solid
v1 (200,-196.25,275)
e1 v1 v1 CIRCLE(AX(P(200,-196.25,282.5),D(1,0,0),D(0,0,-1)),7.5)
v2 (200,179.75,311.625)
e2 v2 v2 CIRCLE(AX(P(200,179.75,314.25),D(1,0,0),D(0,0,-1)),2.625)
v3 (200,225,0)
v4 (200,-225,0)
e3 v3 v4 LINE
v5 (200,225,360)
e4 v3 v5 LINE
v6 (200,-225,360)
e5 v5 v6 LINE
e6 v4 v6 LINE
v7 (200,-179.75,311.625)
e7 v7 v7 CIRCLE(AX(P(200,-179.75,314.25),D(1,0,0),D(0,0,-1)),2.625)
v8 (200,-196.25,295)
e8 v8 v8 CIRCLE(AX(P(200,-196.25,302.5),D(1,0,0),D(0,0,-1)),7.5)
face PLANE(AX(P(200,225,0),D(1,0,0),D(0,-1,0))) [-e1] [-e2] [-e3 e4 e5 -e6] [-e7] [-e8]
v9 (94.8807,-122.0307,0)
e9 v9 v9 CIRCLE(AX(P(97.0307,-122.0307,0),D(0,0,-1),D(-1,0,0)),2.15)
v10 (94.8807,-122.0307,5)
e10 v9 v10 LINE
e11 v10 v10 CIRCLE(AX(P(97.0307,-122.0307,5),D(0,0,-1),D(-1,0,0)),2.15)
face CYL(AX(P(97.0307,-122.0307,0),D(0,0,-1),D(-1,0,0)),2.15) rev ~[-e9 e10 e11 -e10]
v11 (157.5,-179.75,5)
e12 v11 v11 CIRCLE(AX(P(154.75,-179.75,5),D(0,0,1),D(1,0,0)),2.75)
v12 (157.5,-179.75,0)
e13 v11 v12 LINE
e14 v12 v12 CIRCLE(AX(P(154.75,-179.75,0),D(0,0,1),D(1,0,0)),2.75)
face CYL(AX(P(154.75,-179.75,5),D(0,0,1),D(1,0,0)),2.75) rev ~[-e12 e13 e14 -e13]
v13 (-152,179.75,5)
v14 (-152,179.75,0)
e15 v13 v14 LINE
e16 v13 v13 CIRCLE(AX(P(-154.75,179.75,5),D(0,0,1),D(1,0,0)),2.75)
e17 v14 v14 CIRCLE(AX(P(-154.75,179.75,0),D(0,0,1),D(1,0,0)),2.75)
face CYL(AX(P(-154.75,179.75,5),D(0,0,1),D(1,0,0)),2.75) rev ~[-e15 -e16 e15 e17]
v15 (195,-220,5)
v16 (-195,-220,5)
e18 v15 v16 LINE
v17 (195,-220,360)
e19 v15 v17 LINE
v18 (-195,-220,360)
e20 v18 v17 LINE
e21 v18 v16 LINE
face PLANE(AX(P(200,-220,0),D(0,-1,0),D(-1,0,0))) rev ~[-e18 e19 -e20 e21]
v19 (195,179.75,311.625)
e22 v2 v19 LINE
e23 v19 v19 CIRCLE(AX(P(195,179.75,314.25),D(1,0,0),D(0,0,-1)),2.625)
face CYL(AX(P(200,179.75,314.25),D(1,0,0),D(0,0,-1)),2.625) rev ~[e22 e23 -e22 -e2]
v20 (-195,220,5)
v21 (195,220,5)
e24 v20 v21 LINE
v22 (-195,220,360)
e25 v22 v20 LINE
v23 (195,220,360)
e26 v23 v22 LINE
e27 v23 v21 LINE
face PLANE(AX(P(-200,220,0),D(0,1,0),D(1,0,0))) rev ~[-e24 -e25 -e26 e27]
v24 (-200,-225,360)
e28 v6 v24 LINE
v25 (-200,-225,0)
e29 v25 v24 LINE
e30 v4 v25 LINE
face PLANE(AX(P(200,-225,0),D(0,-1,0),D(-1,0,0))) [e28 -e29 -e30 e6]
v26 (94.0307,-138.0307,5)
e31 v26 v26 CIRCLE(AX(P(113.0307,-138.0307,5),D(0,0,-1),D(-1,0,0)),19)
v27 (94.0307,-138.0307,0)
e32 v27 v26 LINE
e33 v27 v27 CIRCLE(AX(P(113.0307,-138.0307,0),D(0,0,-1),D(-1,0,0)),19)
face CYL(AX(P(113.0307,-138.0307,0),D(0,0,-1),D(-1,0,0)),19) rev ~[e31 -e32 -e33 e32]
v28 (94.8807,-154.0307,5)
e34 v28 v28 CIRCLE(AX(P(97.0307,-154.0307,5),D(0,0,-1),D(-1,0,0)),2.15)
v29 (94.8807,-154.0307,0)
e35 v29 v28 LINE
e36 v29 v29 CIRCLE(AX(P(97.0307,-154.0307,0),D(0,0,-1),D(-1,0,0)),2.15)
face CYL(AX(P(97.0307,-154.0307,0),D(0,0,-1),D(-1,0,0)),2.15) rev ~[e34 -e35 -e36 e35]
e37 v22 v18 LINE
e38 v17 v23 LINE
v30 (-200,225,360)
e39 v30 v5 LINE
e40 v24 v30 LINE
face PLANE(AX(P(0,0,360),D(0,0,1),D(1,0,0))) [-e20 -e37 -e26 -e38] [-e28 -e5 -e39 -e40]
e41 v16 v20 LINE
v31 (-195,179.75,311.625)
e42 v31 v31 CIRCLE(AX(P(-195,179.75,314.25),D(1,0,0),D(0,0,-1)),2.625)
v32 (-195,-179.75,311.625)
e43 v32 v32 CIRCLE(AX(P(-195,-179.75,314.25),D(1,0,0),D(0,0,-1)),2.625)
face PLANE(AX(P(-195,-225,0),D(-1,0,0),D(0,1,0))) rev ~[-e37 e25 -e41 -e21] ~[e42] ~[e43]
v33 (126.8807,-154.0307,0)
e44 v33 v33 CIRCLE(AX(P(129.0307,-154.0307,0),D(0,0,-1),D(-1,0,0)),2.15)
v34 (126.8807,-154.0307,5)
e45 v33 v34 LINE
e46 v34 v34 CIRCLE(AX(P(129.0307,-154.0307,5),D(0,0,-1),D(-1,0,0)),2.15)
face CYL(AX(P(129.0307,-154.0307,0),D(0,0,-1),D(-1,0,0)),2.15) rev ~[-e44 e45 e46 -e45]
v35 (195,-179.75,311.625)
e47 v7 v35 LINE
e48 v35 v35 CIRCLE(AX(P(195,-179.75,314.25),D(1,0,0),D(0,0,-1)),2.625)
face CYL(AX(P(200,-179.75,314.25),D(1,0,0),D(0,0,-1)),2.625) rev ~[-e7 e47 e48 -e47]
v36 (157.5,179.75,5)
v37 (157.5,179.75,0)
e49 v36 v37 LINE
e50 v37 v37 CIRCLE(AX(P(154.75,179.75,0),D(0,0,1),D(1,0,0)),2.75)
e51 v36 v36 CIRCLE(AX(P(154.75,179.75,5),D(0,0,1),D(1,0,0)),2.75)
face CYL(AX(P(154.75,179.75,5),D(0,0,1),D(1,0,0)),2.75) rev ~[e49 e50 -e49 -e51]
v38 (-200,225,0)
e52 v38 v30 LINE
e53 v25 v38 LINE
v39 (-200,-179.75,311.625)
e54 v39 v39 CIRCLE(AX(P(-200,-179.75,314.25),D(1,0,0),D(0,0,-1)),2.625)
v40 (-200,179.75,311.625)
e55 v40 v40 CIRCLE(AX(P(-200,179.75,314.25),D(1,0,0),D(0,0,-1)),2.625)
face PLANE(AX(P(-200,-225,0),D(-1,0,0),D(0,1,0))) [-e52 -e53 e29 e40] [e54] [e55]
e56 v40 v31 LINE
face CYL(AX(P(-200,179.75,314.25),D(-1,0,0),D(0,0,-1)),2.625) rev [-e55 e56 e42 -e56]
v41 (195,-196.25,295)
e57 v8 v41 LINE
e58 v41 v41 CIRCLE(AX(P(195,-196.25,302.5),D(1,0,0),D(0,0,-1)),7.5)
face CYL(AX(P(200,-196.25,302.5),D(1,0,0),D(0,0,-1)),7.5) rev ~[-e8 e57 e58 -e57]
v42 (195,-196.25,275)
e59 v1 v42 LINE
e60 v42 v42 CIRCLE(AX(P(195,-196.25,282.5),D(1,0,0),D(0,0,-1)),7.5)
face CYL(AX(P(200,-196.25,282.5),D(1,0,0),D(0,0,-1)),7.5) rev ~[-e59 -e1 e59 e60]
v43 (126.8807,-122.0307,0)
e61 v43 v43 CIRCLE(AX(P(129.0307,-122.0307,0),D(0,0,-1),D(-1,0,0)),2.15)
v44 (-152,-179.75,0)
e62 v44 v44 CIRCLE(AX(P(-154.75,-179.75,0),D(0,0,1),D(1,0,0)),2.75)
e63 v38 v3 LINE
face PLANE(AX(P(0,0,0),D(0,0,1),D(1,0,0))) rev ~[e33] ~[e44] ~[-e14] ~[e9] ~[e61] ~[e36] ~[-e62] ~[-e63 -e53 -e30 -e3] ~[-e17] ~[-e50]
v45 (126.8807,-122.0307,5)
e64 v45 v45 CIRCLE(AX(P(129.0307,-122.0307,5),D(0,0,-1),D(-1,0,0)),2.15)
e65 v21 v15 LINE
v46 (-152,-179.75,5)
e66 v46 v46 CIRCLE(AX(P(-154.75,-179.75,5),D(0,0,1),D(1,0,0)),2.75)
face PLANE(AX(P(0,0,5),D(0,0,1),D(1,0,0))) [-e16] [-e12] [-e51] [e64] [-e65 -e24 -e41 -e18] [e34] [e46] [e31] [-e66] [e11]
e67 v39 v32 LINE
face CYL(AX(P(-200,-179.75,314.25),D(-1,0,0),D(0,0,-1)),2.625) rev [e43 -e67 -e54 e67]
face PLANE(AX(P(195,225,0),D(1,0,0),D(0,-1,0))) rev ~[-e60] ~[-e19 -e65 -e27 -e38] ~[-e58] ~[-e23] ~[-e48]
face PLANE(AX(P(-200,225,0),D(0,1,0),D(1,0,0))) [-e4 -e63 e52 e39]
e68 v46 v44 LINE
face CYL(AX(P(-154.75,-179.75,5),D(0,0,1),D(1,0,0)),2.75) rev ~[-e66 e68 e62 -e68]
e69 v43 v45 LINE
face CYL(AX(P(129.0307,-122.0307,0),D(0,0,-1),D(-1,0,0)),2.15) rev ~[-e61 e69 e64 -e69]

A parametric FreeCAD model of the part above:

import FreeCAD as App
import Part
import Sketcher
from FreeCAD import Vector


def faces_at(feature, points):
    """Names of the faces that lie closest to the given points."""
    faces = feature.Shape.Faces
    near = lambda p: min(range(len(faces)), key=lambda i: faces[i].distToShape(Part.Vertex(*p))[0])
    return sorted({f"Face{near(p) + 1}" for p in points})

doc = App.newDocument("Part")
body = doc.addObject("PartDesign::Body", "Body")

# Sketch on XY plane
sketch1 = doc.addObject("Sketcher::SketchObject", "Sketch")
body.addObject(sketch1)
sketch1.AttachmentSupport = (doc.XY_Plane, [""])
sketch1.MapMode = "FlatFace"
sketch1.addGeometry(Part.LineSegment(Vector(-200, -225, 0), Vector(200, -225, 0)), False)
sketch1.addGeometry(Part.LineSegment(Vector(200, -225, 0), Vector(200, 225, 0)), False)
sketch1.addGeometry(Part.LineSegment(Vector(200, 225, 0), Vector(-200, 225, 0)), False)
sketch1.addGeometry(Part.LineSegment(Vector(-200, 225, 0), Vector(-200, -225, 0)), False)
sketch1.addConstraint(Sketcher.Constraint("Coincident", 0, 2, 1, 1))
sketch1.addConstraint(Sketcher.Constraint("Coincident", 1, 2, 2, 1))
sketch1.addConstraint(Sketcher.Constraint("Coincident", 2, 2, 3, 1))
sketch1.addConstraint(Sketcher.Constraint("Coincident", 3, 2, 0, 1))
sketch1.addConstraint(Sketcher.Constraint("Horizontal", 0))
sketch1.addConstraint(Sketcher.Constraint("Vertical", 1))
sketch1.addConstraint(Sketcher.Constraint("Horizontal", 2))
sketch1.addConstraint(Sketcher.Constraint("Vertical", 3))
sketch1.addConstraint(Sketcher.Constraint("Symmetric", 0, 2, 2, 2, -1, 1))
sketch1.addConstraint(Sketcher.Constraint("DistanceX", 0, 1, 0, 2, 400.0))
sketch1.addConstraint(Sketcher.Constraint("DistanceY", 1, 1, 1, 2, 450.0))
pad1 = doc.addObject("PartDesign::Pad", "Pad")
body.addObject(pad1)
pad1.Profile = sketch1
pad1.Length = 360
doc.recompute()

thickness = doc.addObject("PartDesign::Thickness", "Thickness")
body.addObject(thickness)
thickness.Base = (pad1, faces_at(pad1, [(-66.667, -75, 360)]))
thickness.Value = 5
thickness.Reversed = True
thickness.Join = "Intersection"

# Sketch on YZ plane
sketch2 = doc.addObject("Sketcher::SketchObject", "Sketch001")
body.addObject(sketch2)
sketch2.AttachmentSupport = (doc.YZ_Plane, [""])
sketch2.MapMode = "FlatFace"
sketch2.AttachmentOffset = App.Placement(Vector(0, 0, 200), App.Rotation())
sketch2.addGeometry(Part.Circle(Vector(-196, 302, 0), Vector(0, 0, 1), 8), False)
sketch2.addGeometry(Part.Circle(Vector(-196, 282, 0), Vector(0, 0, 1), 8), False)
sketch2.addConstraint(Sketcher.Constraint("Equal", 0, 1))
sketch2.addConstraint(Sketcher.Constraint("Vertical", 0, 3, 1, 3))
sketch2.addConstraint(Sketcher.Constraint("Diameter", 0, 15.0))
sketch2.addConstraint(Sketcher.Constraint("DistanceY", 1, 3, 0, 3, 20.0))
sketch2.addConstraint(Sketcher.Constraint("DistanceY", -1, 1, 0, 3, 302.5))
sketch2.addConstraint(Sketcher.Constraint("DistanceX", 0, 3, -1, 1, 196.25))
pocket1 = doc.addObject("PartDesign::Pocket", "Pocket")
body.addObject(pocket1)
pocket1.Profile = sketch2
pocket1.Length = 5

# Sketch on XY plane
sketch3 = doc.addObject("Sketcher::SketchObject", "Sketch002")
body.addObject(sketch3)
sketch3.AttachmentSupport = (doc.XY_Plane, [""])
sketch3.MapMode = "FlatFace"
sketch3.AttachmentOffset = App.Placement(Vector(0, 0, 5), App.Rotation())
sketch3.addGeometry(Part.Circle(Vector(-154.8, 179.8, 0), Vector(0, 0, 1), 2.8), False)
sketch3.addGeometry(Part.Circle(Vector(154.8, 179.8, 0), Vector(0, 0, 1), 2.8), False)
sketch3.addGeometry(Part.Circle(Vector(-154.8, -179.8, 0), Vector(0, 0, 1), 2.8), False)
sketch3.addGeometry(Part.Circle(Vector(154.8, -179.8, 0), Vector(0, 0, 1), 2.8), False)
sketch3.addConstraint(Sketcher.Constraint("Equal", 0, 1))
sketch3.addConstraint(Sketcher.Constraint("Equal", 1, 2))
sketch3.addConstraint(Sketcher.Constraint("Equal", 2, 3))
sketch3.addConstraint(Sketcher.Constraint("Symmetric", 1, 3, 2, 3, -1, 1))
sketch3.addConstraint(Sketcher.Constraint("Symmetric", 0, 3, 3, 3, -1, 1))
sketch3.addConstraint(Sketcher.Constraint("Symmetric", 0, 3, 1, 3, -2))
sketch3.addConstraint(Sketcher.Constraint("Diameter", 0, 5.5))
sketch3.addConstraint(Sketcher.Constraint("DistanceX", 0, 3, 1, 3, 309.5))
sketch3.addConstraint(Sketcher.Constraint("DistanceY", 2, 3, 0, 3, 359.5))
pocket2 = doc.addObject("PartDesign::Pocket", "Pocket001")
body.addObject(pocket2)
pocket2.Profile = sketch3
pocket2.Length = 5

# Sketch on YZ plane
sketch4 = doc.addObject("Sketcher::SketchObject", "Sketch003")
body.addObject(sketch4)
sketch4.AttachmentSupport = (doc.YZ_Plane, [""])
sketch4.MapMode = "FlatFace"
sketch4.AttachmentOffset = App.Placement(Vector(0, 0, 200), App.Rotation())
sketch4.addGeometry(Part.Circle(Vector(179.8, 314.2, 0), Vector(0, 0, 1), 2.6), False)
sketch4.addGeometry(Part.Circle(Vector(-179.8, 314.2, 0), Vector(0, 0, 1), 2.6), False)
sketch4.addConstraint(Sketcher.Constraint("Equal", 0, 1))
sketch4.addConstraint(Sketcher.Constraint("Symmetric", 0, 3, 1, 3, -2))
sketch4.addConstraint(Sketcher.Constraint("Diameter", 0, 5.25))
sketch4.addConstraint(Sketcher.Constraint("DistanceX", 1, 3, 0, 3, 359.5))
sketch4.addConstraint(Sketcher.Constraint("DistanceY", -1, 1, 0, 3, 314.25))
pocket3 = doc.addObject("PartDesign::Pocket", "Pocket002")
body.addObject(pocket3)
pocket3.Profile = sketch4
pocket3.Length = 5
doc.recompute()

mirrored = doc.addObject("PartDesign::Mirrored", "Mirrored")
body.addObject(mirrored)
mirrored.Originals = [pocket3]
mirrored.MirrorPlane = (doc.YZ_Plane, [""])
body.Tip = mirrored

# Sketch on XY plane
sketch5 = doc.addObject("Sketcher::SketchObject", "Sketch004")
body.addObject(sketch5)
sketch5.AttachmentSupport = (doc.XY_Plane, [""])
sketch5.MapMode = "FlatFace"
sketch5.addGeometry(Part.Circle(Vector(113, -138, 0), Vector(0, 0, 1), 19), False)
sketch5.addGeometry(Part.Circle(Vector(129, -122, 0), Vector(0, 0, 1), 2.1), False)
sketch5.addGeometry(Part.Circle(Vector(97, -122, 0), Vector(0, 0, 1), 2.1), False)
sketch5.addGeometry(Part.Circle(Vector(129, -154, 0), Vector(0, 0, 1), 2.1), False)
sketch5.addGeometry(Part.Circle(Vector(97, -154, 0), Vector(0, 0, 1), 2.1), False)
sketch5.addConstraint(Sketcher.Constraint("Equal", 1, 2))
sketch5.addConstraint(Sketcher.Constraint("Equal", 2, 3))
sketch5.addConstraint(Sketcher.Constraint("Equal", 3, 4))
sketch5.addConstraint(Sketcher.Constraint("Horizontal", 1, 3, 2, 3))
sketch5.addConstraint(Sketcher.Constraint("Horizontal", 3, 3, 4, 3))
sketch5.addConstraint(Sketcher.Constraint("Vertical", 1, 3, 3, 3))
sketch5.addConstraint(Sketcher.Constraint("Vertical", 2, 3, 4, 3))
sketch5.addConstraint(Sketcher.Constraint("Diameter", 0, 38.0))
sketch5.addConstraint(Sketcher.Constraint("Diameter", 1, 4.3))
sketch5.addConstraint(Sketcher.Constraint("DistanceX", 2, 3, 1, 3, 32.0))
sketch5.addConstraint(Sketcher.Constraint("DistanceY", 3, 3, 1, 3, 32.0))
sketch5.addConstraint(Sketcher.Constraint("DistanceX", 0, 3, 1, 3, 16.0))
sketch5.addConstraint(Sketcher.Constraint("DistanceY", 0, 3, 1, 3, 16.0))
sketch5.addConstraint(Sketcher.Constraint("DistanceX", -1, 1, 0, 3, 113.0307))
sketch5.addConstraint(Sketcher.Constraint("DistanceY", 0, 3, -1, 1, 138.0307))
pocket4 = doc.addObject("PartDesign::Pocket", "Pocket003")
body.addObject(pocket4)
pocket4.Profile = sketch5
pocket4.Length = 5
pocket4.Reversed = True

doc.recompute()
